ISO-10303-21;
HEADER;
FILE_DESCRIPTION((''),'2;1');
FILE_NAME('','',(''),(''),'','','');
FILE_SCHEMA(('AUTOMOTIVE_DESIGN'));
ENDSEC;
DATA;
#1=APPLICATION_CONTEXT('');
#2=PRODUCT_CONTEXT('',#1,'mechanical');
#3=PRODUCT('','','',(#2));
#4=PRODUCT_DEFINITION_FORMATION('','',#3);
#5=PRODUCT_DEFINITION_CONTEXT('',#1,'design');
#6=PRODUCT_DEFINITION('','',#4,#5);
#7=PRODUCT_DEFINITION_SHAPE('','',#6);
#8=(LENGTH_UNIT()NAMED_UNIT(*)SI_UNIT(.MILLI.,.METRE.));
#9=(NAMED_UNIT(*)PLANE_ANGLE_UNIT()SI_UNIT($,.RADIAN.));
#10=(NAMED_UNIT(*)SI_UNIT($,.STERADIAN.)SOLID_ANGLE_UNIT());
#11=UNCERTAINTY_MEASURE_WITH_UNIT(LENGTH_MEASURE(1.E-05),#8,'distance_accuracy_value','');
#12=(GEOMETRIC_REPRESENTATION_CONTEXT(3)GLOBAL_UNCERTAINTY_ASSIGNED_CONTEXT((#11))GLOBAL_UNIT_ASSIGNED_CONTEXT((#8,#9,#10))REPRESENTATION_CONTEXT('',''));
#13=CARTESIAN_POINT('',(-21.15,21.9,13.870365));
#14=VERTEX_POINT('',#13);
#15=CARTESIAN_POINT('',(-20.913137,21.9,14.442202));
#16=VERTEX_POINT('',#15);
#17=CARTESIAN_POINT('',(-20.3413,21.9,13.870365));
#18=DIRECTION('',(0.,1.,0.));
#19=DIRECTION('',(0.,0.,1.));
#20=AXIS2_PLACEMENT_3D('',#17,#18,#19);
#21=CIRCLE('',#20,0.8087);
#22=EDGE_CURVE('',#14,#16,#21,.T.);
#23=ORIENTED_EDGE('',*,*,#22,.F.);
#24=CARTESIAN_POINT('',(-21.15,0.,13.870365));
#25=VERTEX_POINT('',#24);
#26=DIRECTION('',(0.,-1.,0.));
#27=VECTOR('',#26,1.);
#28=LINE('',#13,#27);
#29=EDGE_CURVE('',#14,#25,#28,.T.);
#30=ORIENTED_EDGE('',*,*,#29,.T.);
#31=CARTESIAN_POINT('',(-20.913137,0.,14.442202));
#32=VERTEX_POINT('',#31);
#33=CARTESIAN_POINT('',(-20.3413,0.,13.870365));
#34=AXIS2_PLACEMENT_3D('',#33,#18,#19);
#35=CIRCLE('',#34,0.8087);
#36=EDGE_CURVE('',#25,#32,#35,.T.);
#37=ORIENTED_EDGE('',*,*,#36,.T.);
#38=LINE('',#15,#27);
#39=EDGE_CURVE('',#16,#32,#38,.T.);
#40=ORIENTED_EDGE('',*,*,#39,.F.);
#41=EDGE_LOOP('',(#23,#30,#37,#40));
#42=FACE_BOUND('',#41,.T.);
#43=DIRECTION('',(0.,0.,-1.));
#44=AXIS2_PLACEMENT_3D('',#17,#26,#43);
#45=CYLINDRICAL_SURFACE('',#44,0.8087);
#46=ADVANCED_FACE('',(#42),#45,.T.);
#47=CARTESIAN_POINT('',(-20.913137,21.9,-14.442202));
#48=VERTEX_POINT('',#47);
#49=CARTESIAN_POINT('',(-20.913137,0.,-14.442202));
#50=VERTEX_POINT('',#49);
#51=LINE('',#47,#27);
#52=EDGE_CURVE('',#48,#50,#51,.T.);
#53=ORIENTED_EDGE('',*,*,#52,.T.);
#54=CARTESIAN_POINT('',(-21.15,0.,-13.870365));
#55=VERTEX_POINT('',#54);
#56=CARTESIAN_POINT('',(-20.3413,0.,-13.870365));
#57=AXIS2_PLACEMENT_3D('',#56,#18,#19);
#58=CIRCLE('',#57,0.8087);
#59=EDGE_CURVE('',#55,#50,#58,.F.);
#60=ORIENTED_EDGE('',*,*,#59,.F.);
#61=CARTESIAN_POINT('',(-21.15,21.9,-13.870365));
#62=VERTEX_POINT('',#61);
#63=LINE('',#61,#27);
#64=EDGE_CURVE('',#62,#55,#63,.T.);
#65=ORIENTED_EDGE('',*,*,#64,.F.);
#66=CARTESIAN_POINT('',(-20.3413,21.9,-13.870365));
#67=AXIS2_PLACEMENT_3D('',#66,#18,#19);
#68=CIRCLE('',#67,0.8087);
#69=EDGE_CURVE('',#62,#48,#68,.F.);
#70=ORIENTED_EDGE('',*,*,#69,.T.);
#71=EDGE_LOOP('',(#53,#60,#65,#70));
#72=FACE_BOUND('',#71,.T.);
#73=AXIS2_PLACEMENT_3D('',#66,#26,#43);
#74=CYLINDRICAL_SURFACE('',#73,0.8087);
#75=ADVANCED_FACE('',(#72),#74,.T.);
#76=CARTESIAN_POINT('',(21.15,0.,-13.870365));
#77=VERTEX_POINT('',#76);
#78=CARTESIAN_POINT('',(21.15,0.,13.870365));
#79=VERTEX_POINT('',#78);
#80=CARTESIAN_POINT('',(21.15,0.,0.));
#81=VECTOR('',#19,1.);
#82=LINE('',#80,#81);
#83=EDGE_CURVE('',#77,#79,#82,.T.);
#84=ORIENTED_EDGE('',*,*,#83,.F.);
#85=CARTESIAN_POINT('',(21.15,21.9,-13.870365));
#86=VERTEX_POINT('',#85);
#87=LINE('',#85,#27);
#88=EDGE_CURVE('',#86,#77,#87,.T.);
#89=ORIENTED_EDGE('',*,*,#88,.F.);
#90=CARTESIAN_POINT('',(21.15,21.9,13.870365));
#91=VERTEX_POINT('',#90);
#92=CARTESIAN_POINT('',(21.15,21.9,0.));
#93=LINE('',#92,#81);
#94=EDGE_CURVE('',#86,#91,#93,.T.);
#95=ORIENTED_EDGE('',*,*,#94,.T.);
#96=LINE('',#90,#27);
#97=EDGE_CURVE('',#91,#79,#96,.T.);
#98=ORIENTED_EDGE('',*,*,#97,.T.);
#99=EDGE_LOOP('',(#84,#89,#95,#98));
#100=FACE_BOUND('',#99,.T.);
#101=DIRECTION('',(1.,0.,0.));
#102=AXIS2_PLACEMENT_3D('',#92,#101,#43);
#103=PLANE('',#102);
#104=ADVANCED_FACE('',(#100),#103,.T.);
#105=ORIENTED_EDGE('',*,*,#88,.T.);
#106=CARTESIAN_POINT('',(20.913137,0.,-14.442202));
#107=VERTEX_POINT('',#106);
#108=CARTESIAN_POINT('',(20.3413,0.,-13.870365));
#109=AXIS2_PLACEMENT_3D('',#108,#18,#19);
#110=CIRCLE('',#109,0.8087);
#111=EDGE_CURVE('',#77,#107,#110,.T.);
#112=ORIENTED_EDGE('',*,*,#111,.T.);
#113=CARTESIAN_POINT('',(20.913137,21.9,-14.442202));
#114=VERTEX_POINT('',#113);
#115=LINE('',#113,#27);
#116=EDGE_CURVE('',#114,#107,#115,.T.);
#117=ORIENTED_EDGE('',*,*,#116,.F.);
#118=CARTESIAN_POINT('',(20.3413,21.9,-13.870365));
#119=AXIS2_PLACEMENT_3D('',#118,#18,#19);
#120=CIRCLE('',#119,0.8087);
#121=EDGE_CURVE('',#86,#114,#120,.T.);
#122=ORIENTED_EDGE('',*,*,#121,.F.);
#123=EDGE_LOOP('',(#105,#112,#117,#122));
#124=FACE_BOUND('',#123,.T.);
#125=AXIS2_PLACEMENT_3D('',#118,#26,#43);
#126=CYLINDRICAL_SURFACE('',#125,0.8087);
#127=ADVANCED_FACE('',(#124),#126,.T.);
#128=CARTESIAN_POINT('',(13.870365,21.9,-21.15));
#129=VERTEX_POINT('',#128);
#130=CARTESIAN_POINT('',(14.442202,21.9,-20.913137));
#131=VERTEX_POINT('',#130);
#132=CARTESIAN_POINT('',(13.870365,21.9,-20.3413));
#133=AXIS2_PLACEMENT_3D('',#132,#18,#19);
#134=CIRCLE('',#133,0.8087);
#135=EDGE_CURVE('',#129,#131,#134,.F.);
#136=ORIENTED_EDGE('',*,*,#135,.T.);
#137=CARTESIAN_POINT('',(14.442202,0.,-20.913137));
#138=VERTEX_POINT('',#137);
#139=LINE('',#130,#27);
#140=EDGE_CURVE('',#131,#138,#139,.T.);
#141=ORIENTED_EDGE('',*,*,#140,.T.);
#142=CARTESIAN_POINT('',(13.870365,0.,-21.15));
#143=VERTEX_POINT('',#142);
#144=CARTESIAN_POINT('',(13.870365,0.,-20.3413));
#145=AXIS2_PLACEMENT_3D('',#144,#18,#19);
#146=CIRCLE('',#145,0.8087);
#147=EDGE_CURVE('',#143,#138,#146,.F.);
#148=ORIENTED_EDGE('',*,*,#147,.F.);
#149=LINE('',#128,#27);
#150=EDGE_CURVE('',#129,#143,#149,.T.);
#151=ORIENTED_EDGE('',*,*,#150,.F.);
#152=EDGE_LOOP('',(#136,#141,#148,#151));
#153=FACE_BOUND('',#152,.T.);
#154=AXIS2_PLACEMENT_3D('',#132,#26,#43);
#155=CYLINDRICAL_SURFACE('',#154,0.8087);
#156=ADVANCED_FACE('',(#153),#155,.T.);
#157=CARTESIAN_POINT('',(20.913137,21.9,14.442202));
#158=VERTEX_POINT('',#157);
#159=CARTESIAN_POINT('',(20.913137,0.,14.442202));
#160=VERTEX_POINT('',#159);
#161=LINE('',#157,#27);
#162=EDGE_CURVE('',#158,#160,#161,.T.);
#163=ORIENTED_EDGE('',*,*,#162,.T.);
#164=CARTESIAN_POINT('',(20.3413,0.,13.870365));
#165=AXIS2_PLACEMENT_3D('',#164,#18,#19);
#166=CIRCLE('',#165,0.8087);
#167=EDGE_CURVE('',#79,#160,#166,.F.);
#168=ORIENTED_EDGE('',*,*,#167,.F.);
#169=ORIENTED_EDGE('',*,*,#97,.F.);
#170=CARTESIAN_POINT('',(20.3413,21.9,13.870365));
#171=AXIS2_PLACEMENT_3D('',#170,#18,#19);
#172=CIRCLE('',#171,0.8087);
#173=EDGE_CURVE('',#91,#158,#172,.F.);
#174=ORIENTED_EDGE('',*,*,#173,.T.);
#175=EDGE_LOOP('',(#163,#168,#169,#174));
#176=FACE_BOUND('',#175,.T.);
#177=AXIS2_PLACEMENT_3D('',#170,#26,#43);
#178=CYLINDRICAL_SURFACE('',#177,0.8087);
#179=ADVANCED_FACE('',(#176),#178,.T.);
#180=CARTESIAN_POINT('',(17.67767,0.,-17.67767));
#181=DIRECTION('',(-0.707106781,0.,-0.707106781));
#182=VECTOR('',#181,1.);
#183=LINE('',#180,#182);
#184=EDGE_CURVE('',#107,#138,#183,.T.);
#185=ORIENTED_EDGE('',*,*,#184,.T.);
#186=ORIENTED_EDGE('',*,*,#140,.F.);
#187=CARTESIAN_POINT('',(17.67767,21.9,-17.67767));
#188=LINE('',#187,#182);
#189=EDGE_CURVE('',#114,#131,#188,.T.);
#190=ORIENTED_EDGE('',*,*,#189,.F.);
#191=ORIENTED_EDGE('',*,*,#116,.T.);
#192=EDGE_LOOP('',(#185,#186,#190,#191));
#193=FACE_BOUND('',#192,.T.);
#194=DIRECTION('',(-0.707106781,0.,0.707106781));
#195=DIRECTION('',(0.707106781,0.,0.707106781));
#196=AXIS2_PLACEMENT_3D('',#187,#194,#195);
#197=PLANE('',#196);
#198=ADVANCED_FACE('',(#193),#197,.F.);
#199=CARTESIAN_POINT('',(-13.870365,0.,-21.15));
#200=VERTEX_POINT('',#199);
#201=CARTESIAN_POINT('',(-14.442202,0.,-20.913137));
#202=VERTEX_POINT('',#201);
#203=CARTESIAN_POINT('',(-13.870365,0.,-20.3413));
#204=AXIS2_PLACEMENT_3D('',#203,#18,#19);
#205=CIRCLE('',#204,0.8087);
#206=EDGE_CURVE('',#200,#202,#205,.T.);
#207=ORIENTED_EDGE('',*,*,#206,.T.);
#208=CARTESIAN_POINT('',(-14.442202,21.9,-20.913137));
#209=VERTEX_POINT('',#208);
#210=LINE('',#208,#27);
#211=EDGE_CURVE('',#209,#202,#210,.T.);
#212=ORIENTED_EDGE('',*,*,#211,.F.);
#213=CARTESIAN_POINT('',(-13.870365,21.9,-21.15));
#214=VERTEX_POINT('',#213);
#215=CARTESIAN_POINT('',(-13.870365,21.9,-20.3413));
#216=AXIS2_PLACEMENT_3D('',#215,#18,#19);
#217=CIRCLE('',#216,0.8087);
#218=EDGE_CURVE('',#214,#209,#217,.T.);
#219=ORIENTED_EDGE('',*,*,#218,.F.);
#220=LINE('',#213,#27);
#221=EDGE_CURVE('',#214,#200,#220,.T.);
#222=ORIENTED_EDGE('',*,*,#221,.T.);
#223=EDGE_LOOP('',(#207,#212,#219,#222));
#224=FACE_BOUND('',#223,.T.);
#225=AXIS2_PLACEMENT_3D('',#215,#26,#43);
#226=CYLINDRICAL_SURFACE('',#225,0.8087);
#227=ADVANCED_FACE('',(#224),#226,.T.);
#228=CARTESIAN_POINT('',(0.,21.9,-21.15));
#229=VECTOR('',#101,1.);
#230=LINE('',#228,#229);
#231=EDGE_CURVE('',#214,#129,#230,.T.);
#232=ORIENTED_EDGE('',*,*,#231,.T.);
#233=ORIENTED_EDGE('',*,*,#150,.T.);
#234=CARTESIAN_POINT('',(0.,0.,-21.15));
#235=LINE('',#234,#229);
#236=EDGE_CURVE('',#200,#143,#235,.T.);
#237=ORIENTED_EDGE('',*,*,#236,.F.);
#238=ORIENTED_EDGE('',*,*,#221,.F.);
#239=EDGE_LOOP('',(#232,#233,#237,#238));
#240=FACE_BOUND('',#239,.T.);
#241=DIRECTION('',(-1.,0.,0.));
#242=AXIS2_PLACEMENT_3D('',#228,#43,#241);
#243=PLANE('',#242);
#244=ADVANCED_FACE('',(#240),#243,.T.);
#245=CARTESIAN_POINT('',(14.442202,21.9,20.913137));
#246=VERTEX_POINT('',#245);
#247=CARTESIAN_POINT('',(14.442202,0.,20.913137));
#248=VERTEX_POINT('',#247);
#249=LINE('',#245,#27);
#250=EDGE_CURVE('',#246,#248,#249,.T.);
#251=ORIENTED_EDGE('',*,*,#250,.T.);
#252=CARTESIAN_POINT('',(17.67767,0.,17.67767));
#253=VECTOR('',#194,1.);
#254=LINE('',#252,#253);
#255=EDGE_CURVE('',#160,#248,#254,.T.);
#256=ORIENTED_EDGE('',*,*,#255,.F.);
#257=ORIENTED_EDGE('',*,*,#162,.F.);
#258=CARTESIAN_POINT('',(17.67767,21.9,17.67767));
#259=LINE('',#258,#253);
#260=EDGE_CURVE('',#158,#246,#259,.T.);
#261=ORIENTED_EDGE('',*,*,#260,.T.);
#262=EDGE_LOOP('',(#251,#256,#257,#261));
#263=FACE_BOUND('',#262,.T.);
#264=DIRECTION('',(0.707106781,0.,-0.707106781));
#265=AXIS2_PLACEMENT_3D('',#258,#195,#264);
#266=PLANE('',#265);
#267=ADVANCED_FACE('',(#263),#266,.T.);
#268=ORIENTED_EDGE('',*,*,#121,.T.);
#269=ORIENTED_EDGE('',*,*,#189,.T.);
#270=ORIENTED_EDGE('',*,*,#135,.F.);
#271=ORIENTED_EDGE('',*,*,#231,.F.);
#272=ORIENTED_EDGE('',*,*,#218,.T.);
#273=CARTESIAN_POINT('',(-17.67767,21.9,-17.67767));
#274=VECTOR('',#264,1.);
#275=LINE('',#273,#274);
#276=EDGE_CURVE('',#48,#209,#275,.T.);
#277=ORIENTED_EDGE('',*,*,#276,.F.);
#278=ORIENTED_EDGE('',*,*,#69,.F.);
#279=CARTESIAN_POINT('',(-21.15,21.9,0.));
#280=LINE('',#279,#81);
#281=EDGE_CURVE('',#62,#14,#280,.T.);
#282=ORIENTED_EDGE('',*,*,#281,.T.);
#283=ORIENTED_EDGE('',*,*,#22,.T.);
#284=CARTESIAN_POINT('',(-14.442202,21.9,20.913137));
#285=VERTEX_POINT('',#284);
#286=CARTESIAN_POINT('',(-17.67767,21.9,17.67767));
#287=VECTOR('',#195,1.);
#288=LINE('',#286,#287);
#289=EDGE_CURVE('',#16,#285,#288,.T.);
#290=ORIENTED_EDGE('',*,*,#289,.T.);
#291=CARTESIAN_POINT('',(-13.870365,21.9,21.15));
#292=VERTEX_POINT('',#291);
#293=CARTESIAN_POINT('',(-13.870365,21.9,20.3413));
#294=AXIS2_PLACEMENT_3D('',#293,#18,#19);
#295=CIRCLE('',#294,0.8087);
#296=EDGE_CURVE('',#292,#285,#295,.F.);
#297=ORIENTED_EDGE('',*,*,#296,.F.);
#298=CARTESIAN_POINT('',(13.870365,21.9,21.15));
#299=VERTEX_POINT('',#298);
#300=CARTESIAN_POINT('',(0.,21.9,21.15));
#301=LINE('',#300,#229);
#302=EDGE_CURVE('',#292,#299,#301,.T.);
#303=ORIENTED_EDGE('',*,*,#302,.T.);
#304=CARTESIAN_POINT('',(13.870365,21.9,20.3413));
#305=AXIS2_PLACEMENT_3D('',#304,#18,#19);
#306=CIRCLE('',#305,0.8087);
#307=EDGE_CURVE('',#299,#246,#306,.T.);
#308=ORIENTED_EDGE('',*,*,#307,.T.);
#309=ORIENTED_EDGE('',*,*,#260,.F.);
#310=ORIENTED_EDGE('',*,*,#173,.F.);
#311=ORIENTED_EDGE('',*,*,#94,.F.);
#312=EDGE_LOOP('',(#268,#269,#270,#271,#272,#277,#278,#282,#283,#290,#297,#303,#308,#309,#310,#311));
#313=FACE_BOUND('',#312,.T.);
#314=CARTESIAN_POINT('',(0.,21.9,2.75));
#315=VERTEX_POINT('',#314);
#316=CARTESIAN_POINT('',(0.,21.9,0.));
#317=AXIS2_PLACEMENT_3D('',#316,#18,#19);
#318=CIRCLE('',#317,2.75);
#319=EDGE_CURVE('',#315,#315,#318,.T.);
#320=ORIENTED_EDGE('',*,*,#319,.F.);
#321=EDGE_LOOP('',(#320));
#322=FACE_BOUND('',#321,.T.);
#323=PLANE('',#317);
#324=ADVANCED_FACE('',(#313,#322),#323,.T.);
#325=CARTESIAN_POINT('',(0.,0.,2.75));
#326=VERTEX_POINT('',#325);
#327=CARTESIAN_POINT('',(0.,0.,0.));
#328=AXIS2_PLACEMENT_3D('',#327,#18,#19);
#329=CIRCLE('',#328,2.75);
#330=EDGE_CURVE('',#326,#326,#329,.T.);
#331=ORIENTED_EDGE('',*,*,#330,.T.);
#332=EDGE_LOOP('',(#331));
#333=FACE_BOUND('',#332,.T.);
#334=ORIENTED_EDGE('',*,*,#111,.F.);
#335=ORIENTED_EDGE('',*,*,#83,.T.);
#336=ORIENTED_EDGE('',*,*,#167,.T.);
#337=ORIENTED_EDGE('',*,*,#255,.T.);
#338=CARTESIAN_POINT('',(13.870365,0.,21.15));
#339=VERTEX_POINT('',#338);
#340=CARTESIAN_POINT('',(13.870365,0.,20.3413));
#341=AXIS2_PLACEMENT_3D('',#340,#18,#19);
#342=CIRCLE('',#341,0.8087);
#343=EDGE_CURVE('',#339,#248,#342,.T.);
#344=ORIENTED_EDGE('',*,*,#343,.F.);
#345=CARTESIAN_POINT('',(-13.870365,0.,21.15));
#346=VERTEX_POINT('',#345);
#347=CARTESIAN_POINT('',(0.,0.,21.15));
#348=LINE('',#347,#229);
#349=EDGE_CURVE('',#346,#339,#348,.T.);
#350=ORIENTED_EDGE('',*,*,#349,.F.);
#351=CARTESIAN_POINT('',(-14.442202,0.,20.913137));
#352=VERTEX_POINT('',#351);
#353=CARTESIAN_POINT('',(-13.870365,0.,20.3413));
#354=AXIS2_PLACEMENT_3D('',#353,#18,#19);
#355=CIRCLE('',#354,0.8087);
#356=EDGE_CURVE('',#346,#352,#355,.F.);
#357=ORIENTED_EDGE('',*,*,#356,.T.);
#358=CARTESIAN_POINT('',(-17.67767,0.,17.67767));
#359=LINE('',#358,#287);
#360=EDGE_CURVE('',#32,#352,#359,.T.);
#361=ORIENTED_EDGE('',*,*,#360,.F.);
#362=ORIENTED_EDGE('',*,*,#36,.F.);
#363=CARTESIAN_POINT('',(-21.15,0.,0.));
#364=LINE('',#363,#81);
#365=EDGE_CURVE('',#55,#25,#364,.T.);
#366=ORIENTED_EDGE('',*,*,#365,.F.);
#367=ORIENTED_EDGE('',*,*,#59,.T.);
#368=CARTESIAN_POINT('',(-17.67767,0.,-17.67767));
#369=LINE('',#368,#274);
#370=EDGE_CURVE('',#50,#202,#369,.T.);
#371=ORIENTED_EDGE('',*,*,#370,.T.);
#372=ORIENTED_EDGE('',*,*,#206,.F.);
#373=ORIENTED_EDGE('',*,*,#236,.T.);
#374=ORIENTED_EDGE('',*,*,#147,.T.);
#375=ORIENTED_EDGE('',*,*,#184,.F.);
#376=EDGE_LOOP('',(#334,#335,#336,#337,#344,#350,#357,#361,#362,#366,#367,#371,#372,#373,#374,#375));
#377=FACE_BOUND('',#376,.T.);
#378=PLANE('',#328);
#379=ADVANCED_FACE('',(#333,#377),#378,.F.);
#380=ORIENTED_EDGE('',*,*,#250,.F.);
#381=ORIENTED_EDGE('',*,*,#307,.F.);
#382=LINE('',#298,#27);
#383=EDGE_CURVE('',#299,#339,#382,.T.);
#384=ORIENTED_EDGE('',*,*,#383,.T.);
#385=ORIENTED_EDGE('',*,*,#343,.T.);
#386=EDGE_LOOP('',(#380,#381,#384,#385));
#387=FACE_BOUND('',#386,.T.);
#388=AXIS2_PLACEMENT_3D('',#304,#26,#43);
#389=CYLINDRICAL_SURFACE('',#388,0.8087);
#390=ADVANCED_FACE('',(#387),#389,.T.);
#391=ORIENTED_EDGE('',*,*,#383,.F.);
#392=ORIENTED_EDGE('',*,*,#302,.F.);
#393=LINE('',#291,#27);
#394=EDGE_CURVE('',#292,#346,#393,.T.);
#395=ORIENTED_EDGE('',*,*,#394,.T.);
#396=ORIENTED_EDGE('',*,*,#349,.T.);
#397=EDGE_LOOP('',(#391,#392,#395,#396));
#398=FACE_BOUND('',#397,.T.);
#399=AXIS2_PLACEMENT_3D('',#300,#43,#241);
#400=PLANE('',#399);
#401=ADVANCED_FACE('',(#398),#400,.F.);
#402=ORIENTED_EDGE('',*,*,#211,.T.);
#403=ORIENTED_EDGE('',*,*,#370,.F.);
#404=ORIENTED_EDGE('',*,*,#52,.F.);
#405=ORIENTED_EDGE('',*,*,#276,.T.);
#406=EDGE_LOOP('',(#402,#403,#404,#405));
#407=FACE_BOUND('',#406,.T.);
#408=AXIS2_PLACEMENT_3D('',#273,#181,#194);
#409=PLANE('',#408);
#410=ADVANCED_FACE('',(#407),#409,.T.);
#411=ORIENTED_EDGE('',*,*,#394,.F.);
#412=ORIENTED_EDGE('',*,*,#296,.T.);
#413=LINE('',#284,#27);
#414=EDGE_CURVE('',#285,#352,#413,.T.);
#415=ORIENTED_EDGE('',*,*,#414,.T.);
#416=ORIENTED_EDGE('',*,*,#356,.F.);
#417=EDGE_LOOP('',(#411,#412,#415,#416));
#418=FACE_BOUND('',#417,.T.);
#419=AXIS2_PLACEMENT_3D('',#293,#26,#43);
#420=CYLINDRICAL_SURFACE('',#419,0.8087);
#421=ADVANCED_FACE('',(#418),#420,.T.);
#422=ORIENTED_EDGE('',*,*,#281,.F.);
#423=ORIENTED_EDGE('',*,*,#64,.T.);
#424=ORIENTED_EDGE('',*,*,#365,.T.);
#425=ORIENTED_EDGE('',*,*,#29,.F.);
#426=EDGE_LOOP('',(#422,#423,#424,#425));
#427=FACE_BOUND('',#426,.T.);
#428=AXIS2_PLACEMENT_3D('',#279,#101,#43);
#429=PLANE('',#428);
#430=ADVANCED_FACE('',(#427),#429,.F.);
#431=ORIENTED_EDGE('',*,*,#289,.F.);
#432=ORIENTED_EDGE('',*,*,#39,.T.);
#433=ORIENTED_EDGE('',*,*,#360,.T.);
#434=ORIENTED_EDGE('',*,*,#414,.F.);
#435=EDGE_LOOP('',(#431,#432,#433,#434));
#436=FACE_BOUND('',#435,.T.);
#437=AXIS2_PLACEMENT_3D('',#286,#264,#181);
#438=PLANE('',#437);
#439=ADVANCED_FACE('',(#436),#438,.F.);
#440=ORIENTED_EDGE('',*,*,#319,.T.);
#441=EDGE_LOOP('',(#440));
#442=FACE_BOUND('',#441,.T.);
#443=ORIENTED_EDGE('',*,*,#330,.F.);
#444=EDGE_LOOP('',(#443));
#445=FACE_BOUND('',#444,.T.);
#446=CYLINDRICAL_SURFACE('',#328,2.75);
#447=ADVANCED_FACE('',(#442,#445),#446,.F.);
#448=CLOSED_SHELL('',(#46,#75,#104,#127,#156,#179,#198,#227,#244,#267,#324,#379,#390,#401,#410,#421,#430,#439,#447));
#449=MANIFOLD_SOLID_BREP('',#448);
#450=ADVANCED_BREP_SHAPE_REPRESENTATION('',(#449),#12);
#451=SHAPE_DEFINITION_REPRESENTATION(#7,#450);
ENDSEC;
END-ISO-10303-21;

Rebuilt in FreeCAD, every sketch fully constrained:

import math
import FreeCAD as App
import Part
import Sketcher

doc = App.newDocument("Part")
body = doc.addObject("PartDesign::Body", "Body")

sketch1 = body.newObject("Sketcher::SketchObject", "Sketch")
sketch1.AttachmentSupport = (doc.getObject("XZ_Plane"), [""])
sketch1.MapMode = "FlatFace"
sketch1.addGeometry([
    Part.LineSegment(App.Vector(-14.442202, -20.913137, 0), App.Vector(-20.913137, -14.442202, 0)),
    Part.ArcOfCircle(Part.Circle(App.Vector(-20.3413, -13.870365, 0), App.Vector(0, 0, 1), 0.8087), math.radians(-180), math.radians(-135)),
    Part.LineSegment(App.Vector(-21.15, -13.870365, 0), App.Vector(-21.15, 13.870365, 0)),
    Part.ArcOfCircle(Part.Circle(App.Vector(-20.3413, 13.870365, 0), App.Vector(0, 0, 1), 0.8087), math.radians(135), math.radians(180)),
    Part.LineSegment(App.Vector(-20.913137, 14.442202, 0), App.Vector(-14.442202, 20.913137, 0)),
    Part.ArcOfCircle(Part.Circle(App.Vector(-13.870365, 20.3413, 0), App.Vector(0, 0, 1), 0.8087), math.radians(90), math.radians(135)),
    Part.LineSegment(App.Vector(-13.870365, 21.15, 0), App.Vector(13.870365, 21.15, 0)),
    Part.ArcOfCircle(Part.Circle(App.Vector(13.870365, 20.3413, 0), App.Vector(0, 0, 1), 0.8087), math.radians(45), math.radians(90)),
    Part.LineSegment(App.Vector(14.442202, 20.913137, 0), App.Vector(20.913137, 14.442202, 0)),
    Part.ArcOfCircle(Part.Circle(App.Vector(20.3413, 13.870365, 0), App.Vector(0, 0, 1), 0.8087), math.radians(0), math.radians(45)),
    Part.LineSegment(App.Vector(21.15, 13.870365, 0), App.Vector(21.15, -13.870365, 0)),
    Part.ArcOfCircle(Part.Circle(App.Vector(20.3413, -13.870365, 0), App.Vector(0, 0, 1), 0.8087), math.radians(-45), math.radians(0)),
    Part.LineSegment(App.Vector(20.913137, -14.442202, 0), App.Vector(14.442202, -20.913137, 0)),
    Part.ArcOfCircle(Part.Circle(App.Vector(13.870365, -20.3413, 0), App.Vector(0, 0, 1), 0.8087), math.radians(-90), math.radians(-45)),
    Part.LineSegment(App.Vector(13.870365, -21.15, 0), App.Vector(-13.870365, -21.15, 0)),
    Part.ArcOfCircle(Part.Circle(App.Vector(-13.870365, -20.3413, 0), App.Vector(0, 0, 1), 0.8087), math.radians(-135), math.radians(-90)),
], False)
sketch1.addConstraint([
    Sketcher.Constraint("Tangent", 0, 2, 1, 2),
    Sketcher.Constraint("Tangent", 1, 1, 2, 1),
    Sketcher.Constraint("Tangent", 2, 2, 3, 2),
    Sketcher.Constraint("Tangent", 3, 1, 4, 1),
    Sketcher.Constraint("Tangent", 4, 2, 5, 2),
    Sketcher.Constraint("Tangent", 5, 1, 6, 1),
    Sketcher.Constraint("Tangent", 6, 2, 7, 2),
    Sketcher.Constraint("Tangent", 7, 1, 8, 1),
    Sketcher.Constraint("Tangent", 8, 2, 9, 2),
    Sketcher.Constraint("Tangent", 9, 1, 10, 1),
    Sketcher.Constraint("Tangent", 10, 2, 11, 2),
    Sketcher.Constraint("Tangent", 11, 1, 12, 1),
    Sketcher.Constraint("Tangent", 12, 2, 13, 2),
    Sketcher.Constraint("Tangent", 13, 1, 14, 1),
    Sketcher.Constraint("Tangent", 14, 2, 15, 2),
    Sketcher.Constraint("Tangent", 15, 1, 0, 1),
    Sketcher.Constraint("Vertical", 2),
    Sketcher.Constraint("Horizontal", 6),
    Sketcher.Constraint("Vertical", 10),
    Sketcher.Constraint("Horizontal", 14),
    Sketcher.Constraint("Equal", 1, 3),
    Sketcher.Constraint("Equal", 3, 5),
    Sketcher.Constraint("Equal", 5, 7),
    Sketcher.Constraint("Equal", 7, 9),
    Sketcher.Constraint("Equal", 9, 11),
    Sketcher.Constraint("Equal", 11, 13),
    Sketcher.Constraint("Equal", 13, 15),
    Sketcher.Constraint("Symmetric", 1, 3, 9, 3, -1, 1),
    Sketcher.Constraint("Symmetric", 5, 3, 13, 3, -1, 1),
    Sketcher.Constraint("Symmetric", 4, 2, 7, 1, -2),
    Sketcher.Constraint("Symmetric", 0, 2, 11, 1, -2),
    Sketcher.Constraint("Perpendicular", 0, 4),
    Sketcher.Constraint("Equal", 14, 2),
    Sketcher.Constraint("Radius", 1, 0.8087),
    Sketcher.Constraint("DistanceX", 1, 1, -1, 1, 21.15),
    Sketcher.Constraint("DistanceX", 6, 1, 6, 2, 27.740729),
])
pad1 = body.newObject("PartDesign::Pad", "Pad")
pad1.Profile = sketch1
pad1.Length = 21.9
pad1.Reversed = True

sketch2 = body.newObject("Sketcher::SketchObject", "Sketch001")
sketch2.AttachmentSupport = (doc.getObject("XZ_Plane"), [""])
sketch2.MapMode = "FlatFace"
sketch2.AttachmentOffset = App.Placement(App.Vector(0, 0, -21.9), App.Rotation())
sketch2.addGeometry(Part.Circle(App.Vector(0, 0, 0), App.Vector(0, 0, 1), 2.75), False)
sketch2.addConstraint([
    Sketcher.Constraint("Coincident", 0, 3, -1, 1),
    Sketcher.Constraint("Diameter", 0, 5.5),
])
pocket1 = body.newObject("PartDesign::Pocket", "Pocket")
pocket1.Profile = sketch2
pocket1.Type = "ThroughAll"
pocket1.Midplane = True

doc.recompute()
